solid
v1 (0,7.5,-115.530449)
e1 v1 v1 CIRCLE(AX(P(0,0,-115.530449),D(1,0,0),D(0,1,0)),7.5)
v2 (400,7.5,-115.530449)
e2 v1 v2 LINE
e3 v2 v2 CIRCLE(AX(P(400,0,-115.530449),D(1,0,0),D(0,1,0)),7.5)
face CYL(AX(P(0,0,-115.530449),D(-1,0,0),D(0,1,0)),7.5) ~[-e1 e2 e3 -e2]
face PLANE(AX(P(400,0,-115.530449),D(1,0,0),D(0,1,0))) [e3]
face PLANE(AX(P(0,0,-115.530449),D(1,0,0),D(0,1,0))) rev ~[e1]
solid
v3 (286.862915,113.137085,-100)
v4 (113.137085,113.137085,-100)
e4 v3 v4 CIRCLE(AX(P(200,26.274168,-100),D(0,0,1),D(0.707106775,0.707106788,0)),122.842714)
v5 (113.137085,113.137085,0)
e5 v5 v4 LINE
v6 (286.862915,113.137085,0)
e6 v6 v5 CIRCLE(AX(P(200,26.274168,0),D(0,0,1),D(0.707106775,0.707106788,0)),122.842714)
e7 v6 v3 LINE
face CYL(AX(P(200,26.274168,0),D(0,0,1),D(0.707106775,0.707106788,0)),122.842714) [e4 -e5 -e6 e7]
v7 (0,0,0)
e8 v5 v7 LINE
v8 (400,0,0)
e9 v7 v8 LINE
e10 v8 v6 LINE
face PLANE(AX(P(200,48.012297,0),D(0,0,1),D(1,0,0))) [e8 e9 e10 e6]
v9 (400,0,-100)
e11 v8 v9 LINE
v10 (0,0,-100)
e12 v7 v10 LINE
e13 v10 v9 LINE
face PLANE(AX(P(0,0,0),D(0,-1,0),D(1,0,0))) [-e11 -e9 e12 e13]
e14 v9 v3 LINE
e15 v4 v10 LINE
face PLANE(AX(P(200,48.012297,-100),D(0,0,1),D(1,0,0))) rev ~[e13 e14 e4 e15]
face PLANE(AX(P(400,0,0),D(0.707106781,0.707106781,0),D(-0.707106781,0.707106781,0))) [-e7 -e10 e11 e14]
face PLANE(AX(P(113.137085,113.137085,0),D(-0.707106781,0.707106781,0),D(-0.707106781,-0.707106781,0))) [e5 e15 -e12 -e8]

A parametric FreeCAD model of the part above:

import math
import FreeCAD as App
import Part
import Sketcher
from FreeCAD import Vector
Q = App.Units.Quantity

doc = App.newDocument("Part")
params = doc.addObject("Spreadsheet::Sheet", "Params")
for row, (alias, value) in enumerate([
    ("sketch1_width", "400 mm"),
    ("sketch1_length", "160 mm"),
    ("pad1_length", "100 mm"),
    ("sketch2_diameter", "15 mm"),
    ("pad2_length", "400 mm"),
], start=1):
    params.set(f"A{row}", alias)
    params.set(f"B{row}", "=" + value)
    params.setAlias(f"B{row}", alias)

body = doc.addObject("PartDesign::Body", "Body")

# Sketch on XY plane
sketch1 = body.newObject("Sketcher::SketchObject", "Sketch")
sketch1.AttachmentSupport = (doc.getObject("XY_Plane"), [""])
sketch1.MapMode = "FlatFace"
sketch1.addGeometry([
    Part.LineSegment(Vector(113.137085, 113.137085, 0), Vector(0, 0, 0)),
    Part.LineSegment(Vector(0, 0, 0), Vector(400, 0, 0)),
    Part.LineSegment(Vector(400, 0, 0), Vector(286.862915, 113.137085, 0)),
    Part.ArcOfCircle(Part.Circle(Vector(200, 26.274168, 0), Vector(0, 0, 1), 122.842714), math.radians(45.000001), math.radians(134.999999)),
], False)
sketch1.addConstraint([
    Sketcher.Constraint("Coincident", 0, 2, 1, 1),
    Sketcher.Constraint("Coincident", 1, 2, 2, 1),
    Sketcher.Constraint("Tangent", 2, 2, 3, 1),
    Sketcher.Constraint("Tangent", 3, 2, 0, 1),
    Sketcher.Constraint("Horizontal", 1),
    Sketcher.Constraint("Coincident", 0, 2, -1, 1),
    Sketcher.Constraint("Perpendicular", 0, 2),
    Sketcher.Constraint("Horizontal", 2, 2, 3, 2),
    Sketcher.Constraint("DistanceX", 1, 1, 1, 2, Q("400 mm")),
    Sketcher.Constraint("Distance", 0, Q("160 mm")),
])
sketch1.setExpression("Constraints[8]", "Params.sketch1_width")
sketch1.setExpression("Constraints[9]", "Params.sketch1_length")
pad1 = body.newObject("PartDesign::Pad", "Pad")
pad1.Profile = sketch1
pad1.setExpression("Length", "Params.pad1_length")
pad1.Reversed = True
body2 = doc.addObject("PartDesign::Body", "Body001")

# Sketch on YZ plane
sketch2 = body2.newObject("Sketcher::SketchObject", "Sketch001")
sketch2.AttachmentSupport = (doc.getObject("YZ_Plane001"), [""])
sketch2.MapMode = "FlatFace"
sketch2.addGeometry(Part.Circle(Vector(0, -115.530449, 0), Vector(0, 0, 1), 7.5), False)
sketch2.addConstraint([
    Sketcher.Constraint("PointOnObject", 0, 3, -2),
    Sketcher.Constraint("Diameter", 0, Q("15 mm")),
    Sketcher.Constraint("DistanceY", 0, 3, -1, 1, Q("115.530449 mm")),
])
sketch2.setExpression("Constraints[1]", "Params.sketch2_diameter")
pad2 = body2.newObject("PartDesign::Pad", "Pad001")
pad2.Profile = sketch2
pad2.setExpression("Length", "Params.pad2_length")

doc.recompute()
